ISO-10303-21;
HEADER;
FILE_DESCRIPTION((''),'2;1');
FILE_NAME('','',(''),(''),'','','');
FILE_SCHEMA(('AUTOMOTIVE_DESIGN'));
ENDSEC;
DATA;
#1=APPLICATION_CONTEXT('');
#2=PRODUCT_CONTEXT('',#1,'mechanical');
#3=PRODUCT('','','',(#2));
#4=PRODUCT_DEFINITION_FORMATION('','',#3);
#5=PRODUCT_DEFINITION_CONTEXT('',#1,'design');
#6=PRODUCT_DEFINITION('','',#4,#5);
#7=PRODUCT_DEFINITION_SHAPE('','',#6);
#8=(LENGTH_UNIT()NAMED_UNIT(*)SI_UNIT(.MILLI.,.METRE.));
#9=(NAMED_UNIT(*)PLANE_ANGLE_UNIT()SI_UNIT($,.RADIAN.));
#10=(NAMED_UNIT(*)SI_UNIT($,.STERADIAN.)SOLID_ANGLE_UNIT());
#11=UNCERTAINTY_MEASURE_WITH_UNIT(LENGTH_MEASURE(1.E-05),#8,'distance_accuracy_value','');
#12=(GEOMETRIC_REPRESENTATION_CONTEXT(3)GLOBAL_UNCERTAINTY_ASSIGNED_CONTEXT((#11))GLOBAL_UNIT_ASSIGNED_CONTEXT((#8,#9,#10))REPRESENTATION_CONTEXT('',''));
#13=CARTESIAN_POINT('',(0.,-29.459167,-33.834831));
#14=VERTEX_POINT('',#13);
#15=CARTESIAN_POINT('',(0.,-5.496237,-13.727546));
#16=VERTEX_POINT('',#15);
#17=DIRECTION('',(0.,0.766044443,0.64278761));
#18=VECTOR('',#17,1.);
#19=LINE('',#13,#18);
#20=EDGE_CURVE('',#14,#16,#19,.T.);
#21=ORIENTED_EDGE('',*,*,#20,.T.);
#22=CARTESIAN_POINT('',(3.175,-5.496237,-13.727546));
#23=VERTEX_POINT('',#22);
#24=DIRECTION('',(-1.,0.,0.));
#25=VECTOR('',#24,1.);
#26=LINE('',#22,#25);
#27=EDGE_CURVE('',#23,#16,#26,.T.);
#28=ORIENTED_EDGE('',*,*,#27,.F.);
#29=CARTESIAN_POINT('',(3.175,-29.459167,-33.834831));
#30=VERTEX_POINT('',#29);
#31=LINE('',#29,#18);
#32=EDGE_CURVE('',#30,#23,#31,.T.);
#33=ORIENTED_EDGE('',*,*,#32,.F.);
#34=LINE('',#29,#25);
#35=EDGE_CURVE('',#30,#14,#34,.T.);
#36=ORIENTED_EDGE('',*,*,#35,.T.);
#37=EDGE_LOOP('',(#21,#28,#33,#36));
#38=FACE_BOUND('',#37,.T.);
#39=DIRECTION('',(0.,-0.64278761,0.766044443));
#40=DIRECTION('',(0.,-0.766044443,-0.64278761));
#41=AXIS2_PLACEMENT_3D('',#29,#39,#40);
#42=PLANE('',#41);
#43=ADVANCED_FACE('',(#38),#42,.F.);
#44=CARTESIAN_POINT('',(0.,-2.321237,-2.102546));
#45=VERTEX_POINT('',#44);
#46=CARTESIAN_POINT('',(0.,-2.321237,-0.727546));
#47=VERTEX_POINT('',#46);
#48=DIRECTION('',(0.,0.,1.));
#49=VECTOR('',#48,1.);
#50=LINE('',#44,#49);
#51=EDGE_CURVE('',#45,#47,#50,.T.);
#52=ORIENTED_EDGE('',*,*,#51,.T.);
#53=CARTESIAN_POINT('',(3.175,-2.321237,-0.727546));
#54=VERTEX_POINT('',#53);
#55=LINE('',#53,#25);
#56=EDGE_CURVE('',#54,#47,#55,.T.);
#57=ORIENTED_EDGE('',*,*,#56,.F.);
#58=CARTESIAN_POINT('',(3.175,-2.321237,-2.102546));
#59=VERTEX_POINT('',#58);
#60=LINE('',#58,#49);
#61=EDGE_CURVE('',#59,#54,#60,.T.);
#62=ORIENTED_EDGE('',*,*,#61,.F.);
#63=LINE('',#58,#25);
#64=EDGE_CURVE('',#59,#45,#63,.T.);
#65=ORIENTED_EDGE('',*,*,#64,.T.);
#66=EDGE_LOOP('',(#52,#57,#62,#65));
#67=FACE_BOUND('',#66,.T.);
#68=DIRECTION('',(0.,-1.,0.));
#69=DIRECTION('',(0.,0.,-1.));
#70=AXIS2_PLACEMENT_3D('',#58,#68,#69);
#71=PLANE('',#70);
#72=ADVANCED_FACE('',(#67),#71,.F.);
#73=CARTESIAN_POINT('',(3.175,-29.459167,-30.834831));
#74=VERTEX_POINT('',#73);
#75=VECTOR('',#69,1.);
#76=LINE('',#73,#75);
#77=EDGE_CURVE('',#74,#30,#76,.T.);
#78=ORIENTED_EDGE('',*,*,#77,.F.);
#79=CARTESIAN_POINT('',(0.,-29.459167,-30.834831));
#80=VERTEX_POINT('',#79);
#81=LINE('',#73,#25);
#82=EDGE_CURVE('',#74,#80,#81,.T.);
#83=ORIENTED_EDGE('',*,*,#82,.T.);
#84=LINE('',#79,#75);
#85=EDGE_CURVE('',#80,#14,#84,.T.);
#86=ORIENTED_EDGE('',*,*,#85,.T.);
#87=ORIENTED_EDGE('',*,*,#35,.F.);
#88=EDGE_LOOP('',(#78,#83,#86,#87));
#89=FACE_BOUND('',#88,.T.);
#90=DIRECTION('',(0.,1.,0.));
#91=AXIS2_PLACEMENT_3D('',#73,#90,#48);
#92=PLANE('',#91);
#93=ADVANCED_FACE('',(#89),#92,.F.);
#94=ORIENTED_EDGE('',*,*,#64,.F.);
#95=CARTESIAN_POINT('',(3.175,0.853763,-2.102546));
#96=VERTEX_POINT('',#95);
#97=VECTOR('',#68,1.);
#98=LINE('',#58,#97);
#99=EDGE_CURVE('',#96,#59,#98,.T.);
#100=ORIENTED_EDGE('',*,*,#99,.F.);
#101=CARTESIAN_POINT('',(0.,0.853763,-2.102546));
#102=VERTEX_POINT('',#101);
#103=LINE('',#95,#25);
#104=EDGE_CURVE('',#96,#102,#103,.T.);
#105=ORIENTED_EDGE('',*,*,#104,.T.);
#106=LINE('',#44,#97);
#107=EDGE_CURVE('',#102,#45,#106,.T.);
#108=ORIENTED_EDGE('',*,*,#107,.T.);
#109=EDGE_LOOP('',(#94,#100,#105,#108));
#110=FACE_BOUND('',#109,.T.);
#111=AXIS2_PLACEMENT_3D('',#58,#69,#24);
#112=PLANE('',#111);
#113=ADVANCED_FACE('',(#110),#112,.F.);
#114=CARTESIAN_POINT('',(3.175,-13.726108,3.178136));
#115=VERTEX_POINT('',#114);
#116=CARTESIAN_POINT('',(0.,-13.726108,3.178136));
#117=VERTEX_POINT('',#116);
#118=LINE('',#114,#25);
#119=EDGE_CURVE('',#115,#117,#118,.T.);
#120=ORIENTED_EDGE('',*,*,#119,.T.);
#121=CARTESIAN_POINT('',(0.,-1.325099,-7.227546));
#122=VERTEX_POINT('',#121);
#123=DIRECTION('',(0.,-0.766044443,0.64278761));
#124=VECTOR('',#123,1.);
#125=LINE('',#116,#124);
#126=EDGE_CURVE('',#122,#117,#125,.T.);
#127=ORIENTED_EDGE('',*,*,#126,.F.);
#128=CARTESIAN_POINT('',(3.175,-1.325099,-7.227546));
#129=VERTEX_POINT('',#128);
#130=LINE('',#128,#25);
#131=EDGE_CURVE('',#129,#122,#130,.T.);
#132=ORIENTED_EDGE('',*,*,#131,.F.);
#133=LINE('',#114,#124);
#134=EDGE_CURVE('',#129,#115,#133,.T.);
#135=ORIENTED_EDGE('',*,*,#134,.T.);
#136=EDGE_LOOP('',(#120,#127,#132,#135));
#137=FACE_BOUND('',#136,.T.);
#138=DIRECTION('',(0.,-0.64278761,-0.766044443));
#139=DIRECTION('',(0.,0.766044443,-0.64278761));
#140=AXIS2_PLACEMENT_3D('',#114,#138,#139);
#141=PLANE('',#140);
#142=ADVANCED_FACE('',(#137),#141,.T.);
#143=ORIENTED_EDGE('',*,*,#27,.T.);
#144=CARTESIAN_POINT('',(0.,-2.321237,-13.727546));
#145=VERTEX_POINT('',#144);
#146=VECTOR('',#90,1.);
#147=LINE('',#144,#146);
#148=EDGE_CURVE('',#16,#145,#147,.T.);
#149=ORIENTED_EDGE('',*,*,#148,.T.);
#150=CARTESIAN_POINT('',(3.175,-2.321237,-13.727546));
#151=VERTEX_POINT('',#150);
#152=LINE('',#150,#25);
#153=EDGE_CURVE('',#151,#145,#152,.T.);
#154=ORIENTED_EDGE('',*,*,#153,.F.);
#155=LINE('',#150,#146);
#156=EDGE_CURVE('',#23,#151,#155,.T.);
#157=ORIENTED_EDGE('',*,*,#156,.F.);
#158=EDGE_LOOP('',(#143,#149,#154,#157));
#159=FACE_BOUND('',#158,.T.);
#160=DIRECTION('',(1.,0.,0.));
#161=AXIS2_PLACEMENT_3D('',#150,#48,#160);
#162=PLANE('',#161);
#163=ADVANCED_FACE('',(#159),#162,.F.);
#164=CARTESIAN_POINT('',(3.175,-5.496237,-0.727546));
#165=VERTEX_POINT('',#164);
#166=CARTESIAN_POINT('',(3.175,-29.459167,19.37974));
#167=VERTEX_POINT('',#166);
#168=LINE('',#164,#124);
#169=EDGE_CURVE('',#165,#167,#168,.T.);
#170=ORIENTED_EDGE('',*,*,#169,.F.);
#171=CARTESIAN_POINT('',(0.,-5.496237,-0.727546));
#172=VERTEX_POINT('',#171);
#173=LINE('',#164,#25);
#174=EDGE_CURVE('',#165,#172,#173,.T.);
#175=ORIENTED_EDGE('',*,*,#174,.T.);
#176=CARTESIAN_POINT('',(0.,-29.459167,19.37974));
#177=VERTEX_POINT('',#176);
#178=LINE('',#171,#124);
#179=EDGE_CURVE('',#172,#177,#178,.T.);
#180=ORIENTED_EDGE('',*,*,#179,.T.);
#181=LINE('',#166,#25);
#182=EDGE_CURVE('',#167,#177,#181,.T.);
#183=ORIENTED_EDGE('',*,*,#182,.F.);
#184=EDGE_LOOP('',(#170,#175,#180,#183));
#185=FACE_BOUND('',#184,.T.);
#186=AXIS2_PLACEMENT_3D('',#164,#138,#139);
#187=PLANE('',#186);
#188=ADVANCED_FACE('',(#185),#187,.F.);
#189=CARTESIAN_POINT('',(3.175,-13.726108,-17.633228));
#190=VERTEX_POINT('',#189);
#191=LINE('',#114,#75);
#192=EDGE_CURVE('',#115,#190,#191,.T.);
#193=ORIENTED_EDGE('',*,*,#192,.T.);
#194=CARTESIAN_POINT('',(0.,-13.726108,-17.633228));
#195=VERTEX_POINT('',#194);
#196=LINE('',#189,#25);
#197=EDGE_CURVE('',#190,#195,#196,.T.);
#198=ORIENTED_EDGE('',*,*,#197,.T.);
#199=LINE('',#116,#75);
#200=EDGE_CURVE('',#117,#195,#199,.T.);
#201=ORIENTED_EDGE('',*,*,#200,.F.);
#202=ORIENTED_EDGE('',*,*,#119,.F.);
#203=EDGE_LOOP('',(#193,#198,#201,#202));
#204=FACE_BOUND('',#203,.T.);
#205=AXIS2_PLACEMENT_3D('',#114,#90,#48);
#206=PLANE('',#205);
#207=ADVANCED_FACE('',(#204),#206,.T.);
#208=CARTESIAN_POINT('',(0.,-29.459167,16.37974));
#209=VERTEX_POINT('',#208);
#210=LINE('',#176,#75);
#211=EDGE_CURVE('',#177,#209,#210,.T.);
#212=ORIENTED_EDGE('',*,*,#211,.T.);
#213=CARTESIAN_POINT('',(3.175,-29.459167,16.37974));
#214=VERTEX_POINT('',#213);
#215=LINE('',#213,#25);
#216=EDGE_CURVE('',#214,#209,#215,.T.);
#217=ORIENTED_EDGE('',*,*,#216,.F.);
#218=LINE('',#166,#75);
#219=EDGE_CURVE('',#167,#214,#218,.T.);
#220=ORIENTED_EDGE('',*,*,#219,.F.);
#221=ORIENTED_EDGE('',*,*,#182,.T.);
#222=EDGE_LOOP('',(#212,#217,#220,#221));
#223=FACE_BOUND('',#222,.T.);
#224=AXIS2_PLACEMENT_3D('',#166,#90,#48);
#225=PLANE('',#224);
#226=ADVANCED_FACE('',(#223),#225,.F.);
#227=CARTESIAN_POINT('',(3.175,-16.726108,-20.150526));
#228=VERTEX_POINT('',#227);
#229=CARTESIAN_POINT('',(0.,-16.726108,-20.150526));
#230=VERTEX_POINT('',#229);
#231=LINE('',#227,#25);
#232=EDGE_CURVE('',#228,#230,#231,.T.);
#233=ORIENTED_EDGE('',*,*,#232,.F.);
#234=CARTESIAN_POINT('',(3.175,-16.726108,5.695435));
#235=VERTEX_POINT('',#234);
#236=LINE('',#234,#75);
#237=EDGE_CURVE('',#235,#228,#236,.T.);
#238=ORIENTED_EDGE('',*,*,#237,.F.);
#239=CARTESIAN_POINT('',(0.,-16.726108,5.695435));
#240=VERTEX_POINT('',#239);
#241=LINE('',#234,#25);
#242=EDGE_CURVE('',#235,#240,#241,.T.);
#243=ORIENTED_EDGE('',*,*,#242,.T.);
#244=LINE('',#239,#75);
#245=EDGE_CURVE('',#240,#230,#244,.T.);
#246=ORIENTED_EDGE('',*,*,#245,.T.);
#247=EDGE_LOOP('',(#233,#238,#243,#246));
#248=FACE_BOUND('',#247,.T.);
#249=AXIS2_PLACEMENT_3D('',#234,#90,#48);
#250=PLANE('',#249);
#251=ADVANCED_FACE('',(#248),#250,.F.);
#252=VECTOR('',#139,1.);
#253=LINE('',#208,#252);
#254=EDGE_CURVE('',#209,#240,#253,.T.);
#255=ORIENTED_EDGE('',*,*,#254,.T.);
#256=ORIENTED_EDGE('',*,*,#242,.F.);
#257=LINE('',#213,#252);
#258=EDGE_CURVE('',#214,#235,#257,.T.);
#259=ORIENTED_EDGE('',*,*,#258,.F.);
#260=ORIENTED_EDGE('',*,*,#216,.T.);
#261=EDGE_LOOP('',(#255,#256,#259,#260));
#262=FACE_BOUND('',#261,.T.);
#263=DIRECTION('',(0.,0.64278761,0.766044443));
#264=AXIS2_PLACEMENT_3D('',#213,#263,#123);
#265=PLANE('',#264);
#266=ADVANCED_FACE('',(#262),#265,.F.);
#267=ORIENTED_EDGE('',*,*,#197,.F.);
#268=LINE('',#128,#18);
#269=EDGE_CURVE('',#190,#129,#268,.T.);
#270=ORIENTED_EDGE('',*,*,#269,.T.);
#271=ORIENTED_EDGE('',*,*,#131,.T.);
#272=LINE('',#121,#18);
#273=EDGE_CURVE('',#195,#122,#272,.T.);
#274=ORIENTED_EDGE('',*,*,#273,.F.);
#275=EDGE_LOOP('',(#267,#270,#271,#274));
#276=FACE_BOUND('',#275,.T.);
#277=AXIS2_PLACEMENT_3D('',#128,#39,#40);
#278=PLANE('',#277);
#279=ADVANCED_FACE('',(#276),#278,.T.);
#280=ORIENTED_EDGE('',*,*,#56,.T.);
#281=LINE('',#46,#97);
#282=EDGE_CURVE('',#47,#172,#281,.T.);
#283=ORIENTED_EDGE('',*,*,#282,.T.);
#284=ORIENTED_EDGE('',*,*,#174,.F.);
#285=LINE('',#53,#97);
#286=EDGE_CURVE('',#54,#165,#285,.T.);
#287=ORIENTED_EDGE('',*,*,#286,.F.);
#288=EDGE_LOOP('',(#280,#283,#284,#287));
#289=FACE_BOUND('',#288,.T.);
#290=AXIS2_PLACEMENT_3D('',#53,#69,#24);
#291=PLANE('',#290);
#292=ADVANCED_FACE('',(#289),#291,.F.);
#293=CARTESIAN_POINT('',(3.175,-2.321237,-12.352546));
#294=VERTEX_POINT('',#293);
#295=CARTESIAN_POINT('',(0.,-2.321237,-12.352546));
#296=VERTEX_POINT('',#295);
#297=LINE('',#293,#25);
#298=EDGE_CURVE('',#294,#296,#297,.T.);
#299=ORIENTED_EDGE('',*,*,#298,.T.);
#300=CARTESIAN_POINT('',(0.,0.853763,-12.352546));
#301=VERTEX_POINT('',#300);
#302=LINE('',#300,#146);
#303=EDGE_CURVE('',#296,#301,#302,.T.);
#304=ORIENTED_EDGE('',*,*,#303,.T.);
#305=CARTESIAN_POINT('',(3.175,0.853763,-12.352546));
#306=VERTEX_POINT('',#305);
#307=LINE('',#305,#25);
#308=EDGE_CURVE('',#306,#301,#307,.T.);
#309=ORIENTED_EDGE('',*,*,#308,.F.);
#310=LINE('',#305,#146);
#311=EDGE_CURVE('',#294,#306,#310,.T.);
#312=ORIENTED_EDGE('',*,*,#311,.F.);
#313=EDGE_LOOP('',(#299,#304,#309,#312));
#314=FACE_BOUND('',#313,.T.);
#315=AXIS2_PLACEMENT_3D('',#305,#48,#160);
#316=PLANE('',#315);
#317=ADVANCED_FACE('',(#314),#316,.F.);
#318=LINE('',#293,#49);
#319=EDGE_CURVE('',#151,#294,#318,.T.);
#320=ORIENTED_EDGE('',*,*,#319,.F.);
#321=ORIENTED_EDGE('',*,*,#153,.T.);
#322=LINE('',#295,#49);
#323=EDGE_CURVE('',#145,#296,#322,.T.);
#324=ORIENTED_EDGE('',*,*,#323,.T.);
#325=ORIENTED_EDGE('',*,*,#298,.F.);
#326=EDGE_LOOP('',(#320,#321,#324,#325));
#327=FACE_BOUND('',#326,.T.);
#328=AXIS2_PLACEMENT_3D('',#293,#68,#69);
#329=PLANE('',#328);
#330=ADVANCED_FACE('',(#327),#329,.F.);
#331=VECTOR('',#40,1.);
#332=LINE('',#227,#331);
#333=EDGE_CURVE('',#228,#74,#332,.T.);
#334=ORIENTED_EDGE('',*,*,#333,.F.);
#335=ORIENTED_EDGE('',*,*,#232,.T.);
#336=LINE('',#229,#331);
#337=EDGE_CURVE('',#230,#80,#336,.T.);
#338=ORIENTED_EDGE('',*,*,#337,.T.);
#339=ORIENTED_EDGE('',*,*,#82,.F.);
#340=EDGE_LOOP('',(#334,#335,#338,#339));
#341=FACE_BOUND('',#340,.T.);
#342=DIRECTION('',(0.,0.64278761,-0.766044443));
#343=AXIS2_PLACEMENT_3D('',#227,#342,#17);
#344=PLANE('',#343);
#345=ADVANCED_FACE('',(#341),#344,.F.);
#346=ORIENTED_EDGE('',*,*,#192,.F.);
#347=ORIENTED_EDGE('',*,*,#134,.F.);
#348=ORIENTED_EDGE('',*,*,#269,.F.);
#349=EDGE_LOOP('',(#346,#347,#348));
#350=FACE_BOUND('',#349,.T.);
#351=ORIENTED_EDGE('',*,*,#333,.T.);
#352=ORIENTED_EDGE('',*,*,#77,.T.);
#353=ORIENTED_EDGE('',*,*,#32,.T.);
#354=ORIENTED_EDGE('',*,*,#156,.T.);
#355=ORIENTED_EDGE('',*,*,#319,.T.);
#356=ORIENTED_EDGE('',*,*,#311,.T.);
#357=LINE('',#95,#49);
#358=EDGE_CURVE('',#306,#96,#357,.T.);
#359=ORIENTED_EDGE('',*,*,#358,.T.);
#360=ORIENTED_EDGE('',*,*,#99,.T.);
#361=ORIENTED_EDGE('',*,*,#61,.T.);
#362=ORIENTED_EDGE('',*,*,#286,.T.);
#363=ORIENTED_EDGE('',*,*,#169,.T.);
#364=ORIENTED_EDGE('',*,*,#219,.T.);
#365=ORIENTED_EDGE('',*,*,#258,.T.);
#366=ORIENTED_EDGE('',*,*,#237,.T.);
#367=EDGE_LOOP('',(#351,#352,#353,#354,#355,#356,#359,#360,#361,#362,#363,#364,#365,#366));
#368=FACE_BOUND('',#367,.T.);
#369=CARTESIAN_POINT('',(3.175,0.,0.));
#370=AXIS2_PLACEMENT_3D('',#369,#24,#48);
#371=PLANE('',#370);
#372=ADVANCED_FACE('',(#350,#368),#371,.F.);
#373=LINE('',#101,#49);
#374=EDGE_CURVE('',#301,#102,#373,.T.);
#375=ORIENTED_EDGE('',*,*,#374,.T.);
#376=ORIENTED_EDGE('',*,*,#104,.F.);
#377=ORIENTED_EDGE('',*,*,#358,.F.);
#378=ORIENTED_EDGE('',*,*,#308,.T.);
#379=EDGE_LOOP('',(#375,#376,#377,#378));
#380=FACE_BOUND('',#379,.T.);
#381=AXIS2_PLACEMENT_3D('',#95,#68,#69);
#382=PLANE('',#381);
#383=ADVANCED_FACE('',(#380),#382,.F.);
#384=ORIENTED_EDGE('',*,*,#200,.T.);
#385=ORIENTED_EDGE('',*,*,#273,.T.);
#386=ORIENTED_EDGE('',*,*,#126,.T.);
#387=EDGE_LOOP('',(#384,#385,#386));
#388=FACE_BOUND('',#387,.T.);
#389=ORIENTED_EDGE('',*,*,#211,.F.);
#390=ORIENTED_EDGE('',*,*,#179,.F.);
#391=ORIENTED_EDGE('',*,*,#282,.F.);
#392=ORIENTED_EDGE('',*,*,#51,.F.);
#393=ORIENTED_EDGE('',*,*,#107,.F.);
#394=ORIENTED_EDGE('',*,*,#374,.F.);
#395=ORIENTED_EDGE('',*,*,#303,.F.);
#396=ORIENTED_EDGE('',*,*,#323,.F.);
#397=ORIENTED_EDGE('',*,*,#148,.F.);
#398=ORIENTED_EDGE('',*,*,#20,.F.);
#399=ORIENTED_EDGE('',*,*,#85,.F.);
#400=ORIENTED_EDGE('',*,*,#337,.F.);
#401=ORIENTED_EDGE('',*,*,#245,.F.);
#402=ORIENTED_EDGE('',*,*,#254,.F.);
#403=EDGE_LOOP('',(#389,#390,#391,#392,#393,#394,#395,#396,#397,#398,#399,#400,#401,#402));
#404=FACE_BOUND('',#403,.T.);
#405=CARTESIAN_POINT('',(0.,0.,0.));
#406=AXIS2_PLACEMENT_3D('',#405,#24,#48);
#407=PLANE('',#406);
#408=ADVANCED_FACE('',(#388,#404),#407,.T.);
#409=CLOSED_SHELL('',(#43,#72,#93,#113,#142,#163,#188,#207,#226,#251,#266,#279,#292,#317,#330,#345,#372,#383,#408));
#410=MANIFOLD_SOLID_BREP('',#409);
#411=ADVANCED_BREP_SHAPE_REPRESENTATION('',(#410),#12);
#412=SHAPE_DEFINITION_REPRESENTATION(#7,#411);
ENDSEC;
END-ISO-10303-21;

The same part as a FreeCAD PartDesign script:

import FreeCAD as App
import Part
import Sketcher
Q = App.Units.Quantity


def add_polygon(sketch, points):
    """Adds a closed chain of lines whose ends are joined by coincident constraints."""
    first, n = sketch.GeometryCount, len(points)
    for a, b in zip(points, points[1:] + points[:1]):
        sketch.addGeometry(Part.LineSegment(App.Vector(*a, 0), App.Vector(*b, 0)), False)
    for i in range(n):
        sketch.addConstraint(Sketcher.Constraint("Coincident", first + i, 2, first + (i + 1) % n, 1))

doc = App.newDocument("Part")
body = doc.addObject("PartDesign::Body", "Body")

sketch1 = body.newObject("Sketcher::SketchObject", "Sketch")
sketch1.AttachmentSupport = (doc.getObject("YZ_Plane"), [""])
sketch1.MapMode = "FlatFace"
add_polygon(sketch1, [(-5.5, -0.7), (-29.5, 19.4), (-29.5, 16.4), (-16.7, 5.7), (-16.7, -20.2), (-29.5, -30.8), (-29.5, -33.8), (-5.5, -13.7), (-2.3, -13.7), (-2.3, -12.4), (0.9, -12.4), (0.9, -2.1), (-2.3, -2.1), (-2.3, -0.7)])
add_polygon(sketch1, [(-13.7, 3.2), (-1.3, -7.2), (-13.7, -17.6)])
sketch1.addConstraint([
    Sketcher.Constraint("Vertical", 1),
    Sketcher.Constraint("Vertical", 3),
    Sketcher.Constraint("Vertical", 5),
    Sketcher.Constraint("Horizontal", 7),
    Sketcher.Constraint("Vertical", 8),
    Sketcher.Constraint("Horizontal", 9),
    Sketcher.Constraint("Vertical", 10),
    Sketcher.Constraint("Horizontal", 11),
    Sketcher.Constraint("Vertical", 12),
    Sketcher.Constraint("Horizontal", 13),
    Sketcher.Constraint("Vertical", 16),
    Sketcher.Constraint("Parallel", 0, 2),
    Sketcher.Constraint("Parallel", 4, 6),
    Sketcher.Constraint("Parallel", 2, 14),
    Sketcher.Constraint("Parallel", 6, 15),
    Sketcher.Constraint("Vertical", 1, 2, 4, 2),
    Sketcher.Constraint("Vertical", 8, 2, 11, 2),
    Sketcher.Constraint("Vertical", 6, 2, 13, 2),
    Sketcher.Constraint("Equal", 7, 9),
    Sketcher.Constraint("Equal", 1, 5),
    Sketcher.Constraint("Equal", 8, 12),
    Sketcher.Constraint("Equal", 2, 4),
    Sketcher.Constraint("DistanceY", 1, 2, 1, 1, Q("3 mm")),
    Sketcher.Constraint("Angle", 0, Q("140 deg")),
    Sketcher.Constraint("DistanceY", 7, 2, 12, 2, Q("13 mm")),
    Sketcher.Constraint("DistanceX", 3, 2, 15, 2, Q("3 mm")),
    Sketcher.Constraint("DistanceY", 10, 1, 10, 2, Q("10.25 mm")),
    Sketcher.Constraint("DistanceY", 14, 2, 12, 2, Q("6.5 mm")),
    Sketcher.Constraint("DistanceX", 7, 1, 7, 2, Q("3.175 mm")),
    Sketcher.Constraint("DistanceY", 3, 2, 3, 1, Q("25.845962 mm")),
    Sketcher.Constraint("DistanceX", 14, 2, -1, 1, Q("1.325099 mm")),
    Sketcher.Constraint("DistanceY", 3, 2, 15, 2, Q("2.517299 mm")),
    Sketcher.Constraint("DistanceY", -1, 1, 0, 2, Q("19.37974 mm")),
    Sketcher.Constraint("DistanceY", 4, 2, -1, 1, Q("30.834831 mm")),
])
pad1 = body.newObject("PartDesign::Pad", "Pad")
pad1.Profile = sketch1
pad1.Length = 3.175

doc.recompute()
